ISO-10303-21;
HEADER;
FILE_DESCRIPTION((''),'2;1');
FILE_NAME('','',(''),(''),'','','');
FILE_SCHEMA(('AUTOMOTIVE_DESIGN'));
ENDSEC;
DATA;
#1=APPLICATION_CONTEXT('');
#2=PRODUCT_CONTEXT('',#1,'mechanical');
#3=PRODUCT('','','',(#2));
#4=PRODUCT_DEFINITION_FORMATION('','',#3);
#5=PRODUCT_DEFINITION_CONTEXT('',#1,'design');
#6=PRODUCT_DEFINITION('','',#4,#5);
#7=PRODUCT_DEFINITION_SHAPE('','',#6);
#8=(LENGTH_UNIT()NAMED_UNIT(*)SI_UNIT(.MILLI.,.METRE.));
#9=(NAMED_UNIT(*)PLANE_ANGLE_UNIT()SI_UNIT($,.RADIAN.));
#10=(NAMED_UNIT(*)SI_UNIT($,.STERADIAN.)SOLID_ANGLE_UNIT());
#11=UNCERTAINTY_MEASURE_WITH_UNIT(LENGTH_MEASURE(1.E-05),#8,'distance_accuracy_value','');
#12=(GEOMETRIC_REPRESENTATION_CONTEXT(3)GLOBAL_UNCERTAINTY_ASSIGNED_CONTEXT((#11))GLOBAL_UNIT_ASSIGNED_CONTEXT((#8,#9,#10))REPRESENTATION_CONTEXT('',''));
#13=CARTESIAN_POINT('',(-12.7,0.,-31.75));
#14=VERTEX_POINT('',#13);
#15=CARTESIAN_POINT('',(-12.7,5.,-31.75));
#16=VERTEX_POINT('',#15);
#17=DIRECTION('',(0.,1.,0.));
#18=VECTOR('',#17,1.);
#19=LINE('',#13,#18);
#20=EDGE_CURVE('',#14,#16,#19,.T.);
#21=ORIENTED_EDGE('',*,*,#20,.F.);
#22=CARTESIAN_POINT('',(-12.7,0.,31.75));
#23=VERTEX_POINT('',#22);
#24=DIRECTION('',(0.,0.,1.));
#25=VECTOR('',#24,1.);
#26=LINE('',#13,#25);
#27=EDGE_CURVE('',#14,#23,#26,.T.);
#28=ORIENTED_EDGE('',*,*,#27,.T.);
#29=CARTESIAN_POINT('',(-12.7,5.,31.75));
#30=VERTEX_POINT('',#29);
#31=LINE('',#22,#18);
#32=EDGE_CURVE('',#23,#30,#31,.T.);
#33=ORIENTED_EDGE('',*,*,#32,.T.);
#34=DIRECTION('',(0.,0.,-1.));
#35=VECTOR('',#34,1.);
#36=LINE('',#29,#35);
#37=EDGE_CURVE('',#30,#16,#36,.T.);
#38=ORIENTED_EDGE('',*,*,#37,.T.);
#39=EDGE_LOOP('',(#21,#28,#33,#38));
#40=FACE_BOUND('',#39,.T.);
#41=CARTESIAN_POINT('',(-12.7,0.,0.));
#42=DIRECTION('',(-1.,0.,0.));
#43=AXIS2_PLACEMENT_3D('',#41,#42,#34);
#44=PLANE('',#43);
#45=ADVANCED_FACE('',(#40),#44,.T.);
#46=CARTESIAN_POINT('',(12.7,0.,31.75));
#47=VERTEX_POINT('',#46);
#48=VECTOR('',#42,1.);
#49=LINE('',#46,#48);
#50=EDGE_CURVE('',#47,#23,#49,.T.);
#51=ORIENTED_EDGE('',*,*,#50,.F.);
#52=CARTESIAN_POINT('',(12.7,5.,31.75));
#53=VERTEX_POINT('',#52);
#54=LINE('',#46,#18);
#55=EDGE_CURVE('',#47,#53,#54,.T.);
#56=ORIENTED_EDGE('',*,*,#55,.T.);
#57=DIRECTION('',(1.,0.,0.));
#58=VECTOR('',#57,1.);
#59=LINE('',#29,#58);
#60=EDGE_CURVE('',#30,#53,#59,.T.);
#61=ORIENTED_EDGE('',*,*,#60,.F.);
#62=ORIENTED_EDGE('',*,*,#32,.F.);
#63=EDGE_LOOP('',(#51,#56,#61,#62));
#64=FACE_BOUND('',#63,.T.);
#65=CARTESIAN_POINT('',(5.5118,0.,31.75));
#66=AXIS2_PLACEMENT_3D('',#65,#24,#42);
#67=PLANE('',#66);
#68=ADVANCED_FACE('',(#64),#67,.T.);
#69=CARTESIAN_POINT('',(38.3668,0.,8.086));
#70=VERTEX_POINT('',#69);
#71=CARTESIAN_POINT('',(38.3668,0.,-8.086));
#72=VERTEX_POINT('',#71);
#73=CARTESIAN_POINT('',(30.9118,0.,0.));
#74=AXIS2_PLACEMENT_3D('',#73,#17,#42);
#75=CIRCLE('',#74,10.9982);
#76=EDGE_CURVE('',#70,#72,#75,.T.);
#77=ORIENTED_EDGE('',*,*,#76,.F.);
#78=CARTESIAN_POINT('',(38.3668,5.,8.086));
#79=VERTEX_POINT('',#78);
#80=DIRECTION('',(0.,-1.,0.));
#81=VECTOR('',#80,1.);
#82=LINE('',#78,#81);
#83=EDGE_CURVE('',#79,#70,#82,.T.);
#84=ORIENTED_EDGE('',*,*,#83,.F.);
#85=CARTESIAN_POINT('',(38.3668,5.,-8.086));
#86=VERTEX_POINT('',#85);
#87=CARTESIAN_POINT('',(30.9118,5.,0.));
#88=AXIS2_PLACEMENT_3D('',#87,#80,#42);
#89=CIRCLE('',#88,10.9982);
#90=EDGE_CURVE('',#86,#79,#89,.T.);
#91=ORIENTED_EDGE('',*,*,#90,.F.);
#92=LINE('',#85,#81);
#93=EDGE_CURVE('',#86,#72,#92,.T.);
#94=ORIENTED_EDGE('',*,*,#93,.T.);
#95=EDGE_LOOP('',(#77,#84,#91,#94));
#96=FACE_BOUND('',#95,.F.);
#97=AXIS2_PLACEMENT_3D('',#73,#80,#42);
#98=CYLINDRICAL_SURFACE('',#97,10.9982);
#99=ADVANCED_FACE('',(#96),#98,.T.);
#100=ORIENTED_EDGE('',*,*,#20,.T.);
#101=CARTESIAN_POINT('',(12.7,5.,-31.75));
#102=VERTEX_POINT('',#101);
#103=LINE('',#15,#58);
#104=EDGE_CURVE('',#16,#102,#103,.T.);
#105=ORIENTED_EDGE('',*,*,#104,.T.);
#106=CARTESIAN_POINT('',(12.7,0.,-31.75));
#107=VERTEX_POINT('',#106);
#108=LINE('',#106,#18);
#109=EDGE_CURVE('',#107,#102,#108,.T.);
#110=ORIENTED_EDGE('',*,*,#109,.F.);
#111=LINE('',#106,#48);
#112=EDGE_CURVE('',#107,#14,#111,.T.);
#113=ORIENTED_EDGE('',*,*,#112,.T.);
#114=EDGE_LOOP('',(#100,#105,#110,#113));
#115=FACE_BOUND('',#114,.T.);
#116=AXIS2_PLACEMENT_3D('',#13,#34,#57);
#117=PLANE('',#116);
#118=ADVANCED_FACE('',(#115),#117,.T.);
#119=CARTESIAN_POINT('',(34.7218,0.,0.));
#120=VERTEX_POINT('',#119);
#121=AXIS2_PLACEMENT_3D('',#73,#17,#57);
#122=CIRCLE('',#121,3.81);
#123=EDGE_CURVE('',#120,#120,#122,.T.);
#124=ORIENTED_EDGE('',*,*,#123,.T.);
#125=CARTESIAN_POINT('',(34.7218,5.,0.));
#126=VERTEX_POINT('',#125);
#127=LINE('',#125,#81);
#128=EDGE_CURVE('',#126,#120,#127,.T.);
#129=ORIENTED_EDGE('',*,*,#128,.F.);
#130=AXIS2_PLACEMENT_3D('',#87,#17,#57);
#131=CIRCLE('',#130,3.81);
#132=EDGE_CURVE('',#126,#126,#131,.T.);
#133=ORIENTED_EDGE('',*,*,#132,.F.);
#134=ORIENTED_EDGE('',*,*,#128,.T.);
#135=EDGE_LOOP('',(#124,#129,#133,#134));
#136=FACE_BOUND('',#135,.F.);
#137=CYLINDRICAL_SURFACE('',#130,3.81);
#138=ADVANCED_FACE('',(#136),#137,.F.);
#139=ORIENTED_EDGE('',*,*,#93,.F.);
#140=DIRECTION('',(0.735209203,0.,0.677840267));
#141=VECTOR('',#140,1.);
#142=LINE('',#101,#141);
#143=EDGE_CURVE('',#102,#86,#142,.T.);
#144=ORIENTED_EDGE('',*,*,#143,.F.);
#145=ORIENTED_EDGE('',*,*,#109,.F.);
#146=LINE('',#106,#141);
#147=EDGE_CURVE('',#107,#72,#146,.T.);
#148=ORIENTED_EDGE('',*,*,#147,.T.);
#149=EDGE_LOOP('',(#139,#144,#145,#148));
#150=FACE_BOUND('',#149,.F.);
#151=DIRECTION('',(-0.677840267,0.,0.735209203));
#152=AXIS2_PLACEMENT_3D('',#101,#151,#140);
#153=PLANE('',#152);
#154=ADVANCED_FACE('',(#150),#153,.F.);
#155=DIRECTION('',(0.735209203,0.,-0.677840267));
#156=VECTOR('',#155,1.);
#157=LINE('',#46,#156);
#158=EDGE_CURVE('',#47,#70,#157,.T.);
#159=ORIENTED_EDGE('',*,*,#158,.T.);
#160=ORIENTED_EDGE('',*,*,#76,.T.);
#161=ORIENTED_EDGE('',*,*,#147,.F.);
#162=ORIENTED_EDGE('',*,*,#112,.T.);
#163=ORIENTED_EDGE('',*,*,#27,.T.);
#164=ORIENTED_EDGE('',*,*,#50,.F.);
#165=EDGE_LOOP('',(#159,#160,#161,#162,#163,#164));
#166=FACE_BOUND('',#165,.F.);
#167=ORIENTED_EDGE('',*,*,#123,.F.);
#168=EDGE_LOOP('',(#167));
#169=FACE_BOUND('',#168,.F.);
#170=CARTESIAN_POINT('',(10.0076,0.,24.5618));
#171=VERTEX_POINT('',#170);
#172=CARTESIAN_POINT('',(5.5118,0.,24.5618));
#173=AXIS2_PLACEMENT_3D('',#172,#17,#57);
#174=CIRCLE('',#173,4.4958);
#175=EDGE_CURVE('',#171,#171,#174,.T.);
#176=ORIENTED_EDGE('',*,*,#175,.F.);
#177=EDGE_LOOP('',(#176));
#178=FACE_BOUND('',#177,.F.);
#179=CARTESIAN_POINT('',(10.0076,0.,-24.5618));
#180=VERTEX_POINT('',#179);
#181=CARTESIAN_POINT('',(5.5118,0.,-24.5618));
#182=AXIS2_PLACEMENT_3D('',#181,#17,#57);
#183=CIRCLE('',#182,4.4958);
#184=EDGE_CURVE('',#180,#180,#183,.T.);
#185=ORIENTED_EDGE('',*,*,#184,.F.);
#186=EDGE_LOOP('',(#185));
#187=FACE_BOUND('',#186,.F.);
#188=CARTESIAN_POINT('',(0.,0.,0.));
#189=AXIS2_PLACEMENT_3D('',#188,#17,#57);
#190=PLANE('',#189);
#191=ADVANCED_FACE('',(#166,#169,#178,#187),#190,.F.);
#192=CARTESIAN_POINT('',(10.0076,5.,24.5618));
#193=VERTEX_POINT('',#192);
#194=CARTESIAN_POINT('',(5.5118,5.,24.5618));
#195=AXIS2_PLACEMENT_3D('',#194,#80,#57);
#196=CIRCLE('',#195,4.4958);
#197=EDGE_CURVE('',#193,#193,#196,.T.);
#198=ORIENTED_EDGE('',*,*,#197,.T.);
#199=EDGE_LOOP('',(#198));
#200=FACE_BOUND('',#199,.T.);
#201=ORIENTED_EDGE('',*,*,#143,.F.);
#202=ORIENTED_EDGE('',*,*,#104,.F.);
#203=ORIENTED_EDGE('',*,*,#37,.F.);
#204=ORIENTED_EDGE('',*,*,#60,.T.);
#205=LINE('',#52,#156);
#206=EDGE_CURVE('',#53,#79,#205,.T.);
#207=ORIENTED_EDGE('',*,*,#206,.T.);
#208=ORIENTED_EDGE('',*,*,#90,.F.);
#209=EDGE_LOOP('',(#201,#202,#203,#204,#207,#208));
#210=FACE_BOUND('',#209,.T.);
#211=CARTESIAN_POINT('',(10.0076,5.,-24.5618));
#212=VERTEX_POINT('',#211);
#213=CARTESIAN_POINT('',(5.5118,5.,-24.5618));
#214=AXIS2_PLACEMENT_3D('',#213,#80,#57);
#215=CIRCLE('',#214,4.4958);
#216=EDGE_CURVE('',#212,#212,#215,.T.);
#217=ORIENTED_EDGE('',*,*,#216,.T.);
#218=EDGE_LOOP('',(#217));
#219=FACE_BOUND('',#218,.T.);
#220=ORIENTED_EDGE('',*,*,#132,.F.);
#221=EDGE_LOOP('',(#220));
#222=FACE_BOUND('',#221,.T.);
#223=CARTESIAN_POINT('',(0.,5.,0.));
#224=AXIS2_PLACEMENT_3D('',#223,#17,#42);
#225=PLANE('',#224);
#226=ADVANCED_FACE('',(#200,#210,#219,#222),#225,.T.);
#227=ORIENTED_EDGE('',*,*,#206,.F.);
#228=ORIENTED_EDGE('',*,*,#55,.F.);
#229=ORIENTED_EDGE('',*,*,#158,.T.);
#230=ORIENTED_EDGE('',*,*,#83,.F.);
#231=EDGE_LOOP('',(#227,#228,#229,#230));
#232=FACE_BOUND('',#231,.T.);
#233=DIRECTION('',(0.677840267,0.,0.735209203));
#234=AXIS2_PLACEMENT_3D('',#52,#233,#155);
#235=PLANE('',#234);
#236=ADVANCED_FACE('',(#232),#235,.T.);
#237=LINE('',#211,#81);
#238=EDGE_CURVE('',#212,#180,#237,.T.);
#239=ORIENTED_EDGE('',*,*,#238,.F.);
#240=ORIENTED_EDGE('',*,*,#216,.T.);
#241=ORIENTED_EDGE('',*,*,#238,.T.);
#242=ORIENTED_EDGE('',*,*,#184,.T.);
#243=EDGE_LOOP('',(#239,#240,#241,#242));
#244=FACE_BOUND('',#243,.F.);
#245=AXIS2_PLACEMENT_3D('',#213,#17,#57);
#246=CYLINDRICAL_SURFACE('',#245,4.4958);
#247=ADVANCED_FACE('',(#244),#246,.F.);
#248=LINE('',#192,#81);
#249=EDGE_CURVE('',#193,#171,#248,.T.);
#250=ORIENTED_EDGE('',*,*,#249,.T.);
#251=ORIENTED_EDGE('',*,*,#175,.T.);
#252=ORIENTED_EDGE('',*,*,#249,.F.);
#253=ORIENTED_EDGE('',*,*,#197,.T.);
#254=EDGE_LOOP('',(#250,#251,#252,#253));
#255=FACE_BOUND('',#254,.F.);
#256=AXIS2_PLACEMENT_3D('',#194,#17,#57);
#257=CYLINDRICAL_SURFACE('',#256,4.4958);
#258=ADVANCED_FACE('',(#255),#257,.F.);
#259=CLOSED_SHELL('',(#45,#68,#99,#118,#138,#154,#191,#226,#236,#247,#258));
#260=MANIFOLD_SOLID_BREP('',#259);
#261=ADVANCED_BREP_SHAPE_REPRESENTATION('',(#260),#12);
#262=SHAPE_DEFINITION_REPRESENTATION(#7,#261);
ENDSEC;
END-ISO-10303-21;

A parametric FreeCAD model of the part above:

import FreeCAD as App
import Part
import Sketcher
from FreeCAD import Vector
Q = App.Units.Quantity


def add_polygon(sketch, points):
    """Adds a closed chain of lines whose ends are joined by coincident constraints."""
    first, n = sketch.GeometryCount, len(points)
    for a, b in zip(points, points[1:] + points[:1]):
        sketch.addGeometry(Part.LineSegment(App.Vector(*a, 0), App.Vector(*b, 0)), False)
    for i in range(n):
        sketch.addConstraint(Sketcher.Constraint("Coincident", first + i, 2, first + (i + 1) % n, 1))

doc = App.newDocument("Part")
body = doc.addObject("PartDesign::Body", "Body")
body.AllowCompound = True

# Sketch on XZ plane
sketch1 = body.newObject("Sketcher::SketchObject", "Sketch")
sketch1.AttachmentSupport = (doc.getObject("XZ_Plane"), [""])
sketch1.MapMode = "FlatFace"
sketch1.addGeometry(Part.Circle(Vector(31, 0, 0), Vector(0, 0, 1), 11), False)  # 0
add_polygon(sketch1, [(-13, -32), (-13, 32), (13, 32), (13, -32)])  # lines 1-4
sketch1.addConstraint([
    Sketcher.Constraint("Vertical", 1),
    Sketcher.Constraint("Horizontal", 2),
    Sketcher.Constraint("Vertical", 3),
    Sketcher.Constraint("Horizontal", 4),
    Sketcher.Constraint("Symmetric", 1, 2, 3, 2, -1, 1),
    Sketcher.Constraint("PointOnObject", 0, 3, -1),
    Sketcher.Constraint("DistanceX", 2, 1, 2, 2, Q("1 in")),
    Sketcher.Constraint("DistanceY", 1, 1, 1, 2, Q("2.5 in")),
    Sketcher.Constraint("Diameter", 0, Q("0.866 in")),
    Sketcher.Constraint("DistanceX", -1, 1, 0, 3, Q("1.217 in")),
])
pad1 = body.newObject("PartDesign::Pad", "Pad")
pad1.Profile = sketch1
pad1.Length = 5
pad1.Reversed = True

# Sketch on XZ plane
sketch2 = body.newObject("Sketcher::SketchObject", "Sketch001")
sketch2.AttachmentSupport = (doc.getObject("XZ_Plane"), [""])
sketch2.MapMode = "FlatFace"
sketch2.AttachmentOffset = App.Placement(Vector(0, 0, -5), App.Rotation())
add_polygon(sketch2, [(13, 32), (38, 8), (38, -8), (13, -32)])  # lines 0-3
sketch2.addConstraint([
    Sketcher.Constraint("Vertical", 1),
    Sketcher.Constraint("Vertical", 3),
    Sketcher.Constraint("Equal", 0, 2),
    Sketcher.Constraint("DistanceY", 3, 1, 3, 2, Q("2.5 in")),
    Sketcher.Constraint("DistanceX", -1, 1, 2, 2, Q("0.5 in")),
    Sketcher.Constraint("DistanceY", 2, 2, -1, 1, Q("1.25 in")),
    Sketcher.Constraint("DistanceY", 1, 2, 1, 1, Q("0.6367 in")),
    Sketcher.Constraint("DistanceX", -1, 1, 0, 2, Q("1.5105 in")),
])
pad2 = body.newObject("PartDesign::Pad", "Pad001")
pad2.Profile = sketch2
pad2.Length = 5

# Sketch on XZ plane
sketch3 = body.newObject("Sketcher::SketchObject", "Sketch002")
sketch3.AttachmentSupport = (doc.getObject("XZ_Plane"), [""])
sketch3.MapMode = "FlatFace"
sketch3.AttachmentOffset = App.Placement(Vector(0, 0, -5), App.Rotation())
sketch3.addGeometry([
    Part.Circle(Vector(5.5, -24.6, 0), Vector(0, 0, 1), 4.5),
    Part.Circle(Vector(5.5, 24.6, 0), Vector(0, 0, 1), 4.5),
    Part.Circle(Vector(30.9, 0, 0), Vector(0, 0, 1), 3.8),
], False)
sketch3.addConstraint([
    Sketcher.Constraint("Equal", 0, 1),
    Sketcher.Constraint("Symmetric", 0, 3, 1, 3, -1),
    Sketcher.Constraint("PointOnObject", 2, 3, -1),
    Sketcher.Constraint("Diameter", 2, Q("0.3 in")),
    Sketcher.Constraint("Diameter", 0, Q("0.354 in")),
    Sketcher.Constraint("DistanceX", 0, 3, 2, 3, Q("1 in")),
    Sketcher.Constraint("DistanceX", -1, 1, 0, 3, Q("0.217 in")),
    Sketcher.Constraint("DistanceY", 0, 3, -1, 1, Q("0.967 in")),
])
pocket1 = body.newObject("PartDesign::Pocket", "Pocket")
pocket1.Profile = sketch3
pocket1.Type = "ThroughAll"
pocket1.Reversed = True

doc.recompute()
